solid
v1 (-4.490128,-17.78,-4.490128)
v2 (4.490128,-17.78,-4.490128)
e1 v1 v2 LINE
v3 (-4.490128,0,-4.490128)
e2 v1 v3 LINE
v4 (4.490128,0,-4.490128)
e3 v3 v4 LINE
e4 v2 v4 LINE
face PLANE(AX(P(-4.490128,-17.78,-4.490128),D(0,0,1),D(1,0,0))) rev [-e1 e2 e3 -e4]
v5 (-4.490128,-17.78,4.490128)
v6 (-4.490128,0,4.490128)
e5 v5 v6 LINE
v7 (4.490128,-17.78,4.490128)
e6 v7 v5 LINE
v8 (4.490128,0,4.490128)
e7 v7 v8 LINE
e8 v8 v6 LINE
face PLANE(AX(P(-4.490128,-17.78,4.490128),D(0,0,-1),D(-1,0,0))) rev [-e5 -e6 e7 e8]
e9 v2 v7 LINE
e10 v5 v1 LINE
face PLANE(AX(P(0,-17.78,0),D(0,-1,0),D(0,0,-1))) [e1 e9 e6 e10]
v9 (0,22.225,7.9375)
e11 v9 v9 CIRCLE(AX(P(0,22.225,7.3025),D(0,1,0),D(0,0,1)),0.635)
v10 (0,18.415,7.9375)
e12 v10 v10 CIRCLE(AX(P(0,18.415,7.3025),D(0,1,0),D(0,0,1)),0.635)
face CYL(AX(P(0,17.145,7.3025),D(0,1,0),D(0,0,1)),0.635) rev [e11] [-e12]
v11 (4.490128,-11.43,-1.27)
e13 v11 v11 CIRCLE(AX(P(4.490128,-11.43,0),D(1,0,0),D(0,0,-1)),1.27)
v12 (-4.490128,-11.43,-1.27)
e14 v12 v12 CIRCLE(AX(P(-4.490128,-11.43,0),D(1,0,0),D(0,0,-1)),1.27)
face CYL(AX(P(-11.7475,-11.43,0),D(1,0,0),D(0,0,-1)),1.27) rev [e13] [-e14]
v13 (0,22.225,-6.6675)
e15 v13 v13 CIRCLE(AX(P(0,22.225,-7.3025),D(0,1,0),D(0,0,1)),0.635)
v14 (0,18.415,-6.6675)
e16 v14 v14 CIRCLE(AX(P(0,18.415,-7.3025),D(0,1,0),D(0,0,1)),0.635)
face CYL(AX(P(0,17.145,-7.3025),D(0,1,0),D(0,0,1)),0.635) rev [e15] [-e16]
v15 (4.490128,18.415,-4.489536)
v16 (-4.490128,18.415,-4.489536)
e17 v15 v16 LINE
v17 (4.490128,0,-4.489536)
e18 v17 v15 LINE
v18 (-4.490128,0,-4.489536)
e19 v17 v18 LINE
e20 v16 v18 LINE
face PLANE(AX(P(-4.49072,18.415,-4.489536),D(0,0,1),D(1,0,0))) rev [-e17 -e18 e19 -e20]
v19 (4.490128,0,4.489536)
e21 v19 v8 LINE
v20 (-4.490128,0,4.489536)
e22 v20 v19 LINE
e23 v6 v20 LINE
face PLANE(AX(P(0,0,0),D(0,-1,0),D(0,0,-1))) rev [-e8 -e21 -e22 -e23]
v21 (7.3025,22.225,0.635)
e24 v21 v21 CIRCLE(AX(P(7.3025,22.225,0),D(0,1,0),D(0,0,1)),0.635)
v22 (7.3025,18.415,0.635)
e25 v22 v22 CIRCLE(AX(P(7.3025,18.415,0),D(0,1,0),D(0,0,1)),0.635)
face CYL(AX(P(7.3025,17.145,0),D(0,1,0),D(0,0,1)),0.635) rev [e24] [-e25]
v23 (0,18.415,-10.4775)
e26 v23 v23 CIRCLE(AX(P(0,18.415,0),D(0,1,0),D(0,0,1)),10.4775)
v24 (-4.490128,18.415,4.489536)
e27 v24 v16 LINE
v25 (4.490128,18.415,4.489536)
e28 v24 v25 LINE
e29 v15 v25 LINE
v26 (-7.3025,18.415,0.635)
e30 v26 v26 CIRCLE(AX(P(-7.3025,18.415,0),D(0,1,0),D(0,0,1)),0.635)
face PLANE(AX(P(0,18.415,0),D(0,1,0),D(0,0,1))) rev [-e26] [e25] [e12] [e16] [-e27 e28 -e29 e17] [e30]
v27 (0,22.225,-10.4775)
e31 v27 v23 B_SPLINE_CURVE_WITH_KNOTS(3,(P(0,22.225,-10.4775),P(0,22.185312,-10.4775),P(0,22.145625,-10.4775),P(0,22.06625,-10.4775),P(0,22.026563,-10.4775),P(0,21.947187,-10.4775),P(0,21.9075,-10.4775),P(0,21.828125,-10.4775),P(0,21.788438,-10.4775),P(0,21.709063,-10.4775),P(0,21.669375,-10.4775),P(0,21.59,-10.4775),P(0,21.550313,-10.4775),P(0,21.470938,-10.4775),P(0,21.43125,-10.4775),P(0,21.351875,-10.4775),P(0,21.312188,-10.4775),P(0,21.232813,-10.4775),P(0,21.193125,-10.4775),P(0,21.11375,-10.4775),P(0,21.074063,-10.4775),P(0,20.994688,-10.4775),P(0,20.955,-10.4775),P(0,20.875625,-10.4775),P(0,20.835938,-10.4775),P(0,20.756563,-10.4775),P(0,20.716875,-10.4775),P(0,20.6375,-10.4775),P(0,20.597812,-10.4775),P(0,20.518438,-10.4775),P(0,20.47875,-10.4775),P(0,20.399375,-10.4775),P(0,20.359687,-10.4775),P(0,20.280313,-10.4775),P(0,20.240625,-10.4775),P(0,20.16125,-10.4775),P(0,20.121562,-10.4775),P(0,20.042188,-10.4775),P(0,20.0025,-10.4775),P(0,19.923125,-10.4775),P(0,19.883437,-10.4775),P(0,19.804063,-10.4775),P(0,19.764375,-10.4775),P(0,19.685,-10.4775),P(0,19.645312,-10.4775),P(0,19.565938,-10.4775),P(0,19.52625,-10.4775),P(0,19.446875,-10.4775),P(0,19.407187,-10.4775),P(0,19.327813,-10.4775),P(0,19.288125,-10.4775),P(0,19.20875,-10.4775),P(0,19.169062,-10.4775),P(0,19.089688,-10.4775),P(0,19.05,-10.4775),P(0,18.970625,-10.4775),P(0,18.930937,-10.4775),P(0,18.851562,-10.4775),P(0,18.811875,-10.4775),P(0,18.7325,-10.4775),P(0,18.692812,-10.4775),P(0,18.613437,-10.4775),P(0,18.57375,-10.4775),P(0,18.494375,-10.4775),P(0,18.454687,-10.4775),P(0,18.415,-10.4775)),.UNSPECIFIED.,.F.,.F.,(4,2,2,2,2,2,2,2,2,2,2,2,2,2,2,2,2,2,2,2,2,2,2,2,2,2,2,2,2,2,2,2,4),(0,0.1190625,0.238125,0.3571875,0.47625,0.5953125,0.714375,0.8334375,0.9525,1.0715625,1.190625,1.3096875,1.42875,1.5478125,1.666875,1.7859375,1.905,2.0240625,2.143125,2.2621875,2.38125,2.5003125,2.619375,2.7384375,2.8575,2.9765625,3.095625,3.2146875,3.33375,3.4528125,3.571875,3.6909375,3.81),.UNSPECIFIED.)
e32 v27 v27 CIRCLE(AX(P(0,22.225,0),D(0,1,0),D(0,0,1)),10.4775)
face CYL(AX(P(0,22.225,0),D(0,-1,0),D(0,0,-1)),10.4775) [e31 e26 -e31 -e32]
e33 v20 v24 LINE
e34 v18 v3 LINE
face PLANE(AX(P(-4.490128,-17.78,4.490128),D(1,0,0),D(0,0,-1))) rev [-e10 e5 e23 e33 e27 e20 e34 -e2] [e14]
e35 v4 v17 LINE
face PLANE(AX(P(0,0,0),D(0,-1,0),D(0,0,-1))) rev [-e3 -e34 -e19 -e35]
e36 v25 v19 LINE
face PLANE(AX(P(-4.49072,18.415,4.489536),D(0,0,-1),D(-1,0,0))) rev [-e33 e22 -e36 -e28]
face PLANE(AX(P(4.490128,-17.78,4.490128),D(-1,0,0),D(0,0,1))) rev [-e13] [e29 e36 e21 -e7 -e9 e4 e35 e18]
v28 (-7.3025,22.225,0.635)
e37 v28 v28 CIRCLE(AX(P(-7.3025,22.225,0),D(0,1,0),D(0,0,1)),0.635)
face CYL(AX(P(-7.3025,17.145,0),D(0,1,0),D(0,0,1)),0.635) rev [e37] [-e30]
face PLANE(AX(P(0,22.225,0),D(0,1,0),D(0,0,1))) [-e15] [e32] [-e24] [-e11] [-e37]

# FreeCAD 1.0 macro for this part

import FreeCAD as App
import Part
import Sketcher
Q = App.Units.Quantity


def add_polygon(sketch, points):
    """Adds a closed chain of lines whose ends are joined by coincident constraints."""
    first, n = sketch.GeometryCount, len(points)
    for a, b in zip(points, points[1:] + points[:1]):
        sketch.addGeometry(Part.LineSegment(App.Vector(*a, 0), App.Vector(*b, 0)), False)
    for i in range(n):
        sketch.addConstraint(Sketcher.Constraint("Coincident", first + i, 2, first + (i + 1) % n, 1))

doc = App.newDocument("Part")
body = doc.addObject("PartDesign::Body", "Body")

sketch1 = body.newObject("Sketcher::SketchObject", "Sketch")
sketch1.AttachmentSupport = (doc.getObject("XZ_Plane"), [""])
sketch1.MapMode = "FlatFace"
add_polygon(sketch1, [(-4, -4), (-4, 4), (4, 4), (4, -4)])
sketch1.addConstraint(Sketcher.Constraint("Vertical", 0))
sketch1.addConstraint(Sketcher.Constraint("Horizontal", 1))
sketch1.addConstraint(Sketcher.Constraint("Vertical", 2))
sketch1.addConstraint(Sketcher.Constraint("Horizontal", 3))
sketch1.addConstraint(Sketcher.Constraint("Symmetric", 0, 2, 2, 2, -1, 1))
sketch1.addConstraint(Sketcher.Constraint("DistanceX", 1, 1, 1, 2, Q("0.3536 in")))
sketch1.addConstraint(Sketcher.Constraint("DistanceY", 0, 1, 0, 2, Q("8.979072 mm")))
pad1 = body.newObject("PartDesign::Pad", "Pad")
pad1.Profile = sketch1
pad1.Length = Q("0.725 in")
pad1.Reversed = True

sketch2 = body.newObject("Sketcher::SketchObject", "Sketch001")
sketch2.AttachmentSupport = (doc.getObject("XZ_Plane"), [""])
sketch2.MapMode = "FlatFace"
sketch2.AttachmentOffset = App.Placement(App.Vector(0, 0, -0.725 * 25.4), App.Rotation())
sketch2.addGeometry(Part.Circle(App.Vector(0, 0, 0), App.Vector(0, 0, 1), 10), False)
sketch2.addConstraint(Sketcher.Constraint("Coincident", 0, 3, -1, 1))
sketch2.addConstraint(Sketcher.Constraint("Diameter", 0, Q("0.825 in")))
pad2 = body.newObject("PartDesign::Pad", "Pad001")
pad2.Profile = sketch2
pad2.Length = Q("0.15 in")
pad2.Reversed = True

sketch3 = body.newObject("Sketcher::SketchObject", "Sketch002")
sketch3.AttachmentSupport = (doc.getObject("XZ_Plane"), [""])
sketch3.MapMode = "FlatFace"
sketch3.AttachmentOffset = App.Placement(App.Vector(0, 0, 0.2 * 25.4), App.Rotation())
sketch3.addGeometry(Part.Circle(App.Vector(0, 0, 0), App.Vector(0, 0, 1), 10), False)
sketch3.addConstraint(Sketcher.Constraint("Coincident", 0, 3, -1, 1))
sketch3.addConstraint(Sketcher.Constraint("Diameter", 0, Q("0.825 in")))
pad3 = body.newObject("PartDesign::Pad", "Pad002")
pad3.Profile = sketch3
pad3.Length = Q("0.2 in")
pad3.Reversed = True

sketch4 = body.newObject("Sketcher::SketchObject", "Sketch003")
sketch4.AttachmentSupport = (doc.getObject("XZ_Plane"), [""])
sketch4.MapMode = "FlatFace"
sketch4.AttachmentOffset = App.Placement(App.Vector(0, 0, 0.2 * 25.4), App.Rotation())
sketch4.addGeometry(Part.Circle(App.Vector(0, 0, 0), App.Vector(0, 0, 1), 20.08033), False)
add_polygon(sketch4, [(-1.83615, 7.449555), (0, 17.195074), (1.83615, 7.449555), (7.990949, 15.225482), (5.087812, 5.742952), (14.151269, 9.767915), (7.173916, 2.720708), (17.069703, 2.072637), (7.616563, -0.924818), (16.077674, -6.097457), (6.314347, -4.358479), (11.402443, -12.870698), (3.565591, -6.793665), (4.115051, -16.695417), (0, -7.672504), (-4.115051, -16.695417), (-3.565591, -6.793665), (-11.402443, -12.870698), (-6.314347, -4.358479), (-16.077674, -6.097457), (-7.616563, -0.924818), (-17.069703, 2.072637), (-7.173916, 2.720708), (-14.151269, 9.767915), (-5.087812, 5.742952), (-7.990949, 15.225482)])
sketch4.addConstraint(Sketcher.Constraint("Coincident", 0, 3, -1, 1))
sketch4.addConstraint(Sketcher.Constraint("PointOnObject", 1, 2, -2))
sketch4.addConstraint(Sketcher.Constraint("PointOnObject", 14, 2, -2))
sketch4.addConstraint(Sketcher.Constraint("Diameter", 0, Q("40.160659 mm")))
sketch4.addConstraint(Sketcher.Constraint("DistanceY", -1, 1, 7, 2, Q("0.0815999 in")))
sketch4.addConstraint(Sketcher.Constraint("DistanceY", 13, 2, -1, 1, Q("0.6572999 in")))
sketch4.addConstraint(Sketcher.Constraint("DistanceY", 15, 2, -1, 1, Q("0.6572999 in")))
sketch4.addConstraint(Sketcher.Constraint("DistanceY", -1, 1, 21, 2, Q("0.0815999 in")))
sketch4.addConstraint(Sketcher.Constraint("DistanceY", 14, 2, 12, 2, Q("0.0346 in")))
sketch4.addConstraint(Sketcher.Constraint("DistanceY", 14, 2, 16, 2, Q("0.0346 in")))
sketch4.addConstraint(Sketcher.Constraint("DistanceX", 2, 2, 3, 2, Q("6.154799 mm")))
sketch4.addConstraint(Sketcher.Constraint("DistanceY", 13, 2, 8, 2, Q("15.770598 mm")))
sketch4.addConstraint(Sketcher.Constraint("DistanceX", 15, 2, 13, 2, Q("8.230101 mm")))
sketch4.addConstraint(Sketcher.Constraint("DistanceX", 25, 2, 2, 2, Q("9.8271 mm")))
sketch4.addConstraint(Sketcher.Constraint("DistanceX", 26, 2, 2, 2, Q("3.672301 mm")))
sketch4.addConstraint(Sketcher.Constraint("DistanceX", -1, 1, 2, 2, Q("1.83615 mm")))
sketch4.addConstraint(Sketcher.Constraint("DistanceX", -1, 1, 4, 2, Q("5.087812 mm")))
sketch4.addConstraint(Sketcher.Constraint("DistanceX", -1, 1, 5, 2, Q("14.151269 mm")))
sketch4.addConstraint(Sketcher.Constraint("DistanceY", 10, 2, -1, 1, Q("4.358479 mm")))
sketch4.addConstraint(Sketcher.Constraint("DistanceX", -1, 1, 12, 2, Q("3.565591 mm")))
sketch4.addConstraint(Sketcher.Constraint("DistanceX", -1, 1, 13, 2, Q("4.115051 mm")))
sketch4.addConstraint(Sketcher.Constraint("DistanceX", 16, 2, -1, 1, Q("3.565591 mm")))
sketch4.addConstraint(Sketcher.Constraint("DistanceY", 18, 2, -1, 1, Q("4.358479 mm")))
sketch4.addConstraint(Sketcher.Constraint("DistanceY", 20, 2, -1, 1, Q("0.924818 mm")))
sketch4.addConstraint(Sketcher.Constraint("DistanceX", 23, 2, -1, 1, Q("14.151269 mm")))
sketch4.addConstraint(Sketcher.Constraint("DistanceX", 24, 2, -1, 1, Q("5.087812 mm")))
sketch4.addConstraint(Sketcher.Constraint("DistanceY", 2, 2, 1, 2, Q("9.745519 mm")))
sketch4.addConstraint(Sketcher.Constraint("DistanceY", 4, 2, 3, 2, Q("9.48253 mm")))
sketch4.addConstraint(Sketcher.Constraint("DistanceY", 2, 2, 5, 2, Q("2.31836 mm")))
sketch4.addConstraint(Sketcher.Constraint("DistanceY", 7, 2, 5, 2, Q("7.695278 mm")))
sketch4.addConstraint(Sketcher.Constraint("DistanceY", 7, 2, 6, 2, Q("0.64807 mm")))
sketch4.addConstraint(Sketcher.Constraint("DistanceX", 4, 2, 7, 2, Q("11.981891 mm")))
sketch4.addConstraint(Sketcher.Constraint("DistanceX", 4, 2, 8, 2, Q("2.528752 mm")))
sketch4.addConstraint(Sketcher.Constraint("DistanceY", 8, 2, 4, 2, Q("6.66777 mm")))
sketch4.addConstraint(Sketcher.Constraint("DistanceX", 9, 2, 7, 2, Q("0.992029 mm")))
sketch4.addConstraint(Sketcher.Constraint("DistanceY", 9, 2, 8, 2, Q("5.172639 mm")))
sketch4.addConstraint(Sketcher.Constraint("DistanceX", 10, 2, 6, 2, Q("0.859569 mm")))
sketch4.addConstraint(Sketcher.Constraint("DistanceX", 11, 2, 9, 2, Q("4.67523 mm")))
sketch4.addConstraint(Sketcher.Constraint("DistanceY", 11, 2, 9, 2, Q("6.773241 mm")))
sketch4.addConstraint(Sketcher.Constraint("DistanceY", 13, 2, 12, 2, Q("9.901751 mm")))
sketch4.addConstraint(Sketcher.Constraint("DistanceY", 15, 2, 17, 2, Q("3.824719 mm")))
sketch4.addConstraint(Sketcher.Constraint("DistanceX", 19, 2, 17, 2, Q("4.67523 mm")))
sketch4.addConstraint(Sketcher.Constraint("DistanceY", 17, 2, 19, 2, Q("6.773241 mm")))
sketch4.addConstraint(Sketcher.Constraint("DistanceX", 19, 2, 20, 2, Q("8.46111 mm")))
sketch4.addConstraint(Sketcher.Constraint("DistanceX", 21, 2, 19, 2, Q("0.992029 mm")))
sketch4.addConstraint(Sketcher.Constraint("DistanceX", 22, 2, 18, 2, Q("0.859569 mm")))
sketch4.addConstraint(Sketcher.Constraint("DistanceY", 21, 2, 22, 2, Q("0.64807 mm")))
sketch4.addConstraint(Sketcher.Constraint("DistanceY", 21, 2, 23, 2, Q("7.695278 mm")))
sketch4.addConstraint(Sketcher.Constraint("DistanceX", 20, 2, 24, 2, Q("2.528752 mm")))
sketch4.addConstraint(Sketcher.Constraint("DistanceY", 20, 2, 24, 2, Q("6.66777 mm")))
sketch4.addConstraint(Sketcher.Constraint("DistanceY", 24, 2, 25, 2, Q("9.48253 mm")))
sketch4.addConstraint(Sketcher.Constraint("Distance", 1, Q("9.916985 mm")))
sketch4.addConstraint(Sketcher.Constraint("Distance", 6, Q("9.916985 mm")))
sketch4.addConstraint(Sketcher.Constraint("Distance", 18, Q("9.916985 mm")))
pocket1 = body.newObject("PartDesign::Pocket", "Pocket")
pocket1.Profile = sketch4
pocket1.Length = Q("0.2 in")

sketch5 = body.newObject("Sketcher::SketchObject", "Sketch004")
sketch5.AttachmentSupport = (doc.getObject("XZ_Plane"), [""])
sketch5.MapMode = "FlatFace"
sketch5.AttachmentOffset = App.Placement(App.Vector(0, 0, 0.2 * 25.4), App.Rotation())
sketch5.addGeometry(Part.Circle(App.Vector(0, 0, 0), App.Vector(0, 0, 1), 12), False)
sketch5.addConstraint(Sketcher.Constraint("Coincident", 0, 3, -1, 1))
sketch5.addConstraint(Sketcher.Constraint("Diameter", 0, Q("0.925 in")))
pad4 = body.newObject("PartDesign::Pad", "Pad003")
pad4.Profile = sketch5
pad4.Length = Q("0.05 in")

sketch6 = body.newObject("Sketcher::SketchObject", "Sketch005")
sketch6.AttachmentSupport = (doc.getObject("XZ_Plane"), [""])
sketch6.MapMode = "FlatFace"
sketch6.AttachmentOffset = App.Placement(App.Vector(0, 0, -0.875 * 25.4), App.Rotation())
sketch6.addGeometry(Part.Circle(App.Vector(0, -7.3, 0), App.Vector(0, 0, 1), 0.6), False)
sketch6.addGeometry(Part.Circle(App.Vector(7.3, 0, 0), App.Vector(0, 0, 1), 0.6), False)
sketch6.addGeometry(Part.Circle(App.Vector(-7.3, 0, 0), App.Vector(0, 0, 1), 0.6), False)
sketch6.addGeometry(Part.Circle(App.Vector(0, 7.3, 0), App.Vector(0, 0, 1), 0.6), False)
sketch6.addConstraint(Sketcher.Constraint("Equal", 0, 1))
sketch6.addConstraint(Sketcher.Constraint("Equal", 1, 2))
sketch6.addConstraint(Sketcher.Constraint("Equal", 2, 3))
sketch6.addConstraint(Sketcher.Constraint("Symmetric", 1, 3, 2, 3, -1, 1))
sketch6.addConstraint(Sketcher.Constraint("Symmetric", 0, 3, 3, 3, -1, 1))
sketch6.addConstraint(Sketcher.Constraint("PointOnObject", 0, 3, -2))
sketch6.addConstraint(Sketcher.Constraint("PointOnObject", 1, 3, -1))
sketch6.addConstraint(Sketcher.Constraint("Diameter", 0, Q("0.05 in")))
sketch6.addConstraint(Sketcher.Constraint("DistanceX", 2, 3, 1, 3, Q("0.575 in")))
sketch6.addConstraint(Sketcher.Constraint("DistanceY", 0, 3, 3, 3, Q("0.575 in")))
pocket2 = body.newObject("PartDesign::Pocket", "Pocket001")
pocket2.Profile = sketch6
pocket2.Length = Q("0.2 in")
pocket2.Reversed = True

sketch7 = body.newObject("Sketcher::SketchObject", "Sketch006")
sketch7.AttachmentSupport = (doc.getObject("XZ_Plane"), [""])
sketch7.MapMode = "FlatFace"
sketch7.AttachmentOffset = App.Placement(App.Vector(0, 0, 0.25 * 25.4), App.Rotation())
add_polygon(sketch7, [(-4, 4), (-4, -4), (4, -4), (4, 4)])
sketch7.addConstraint(Sketcher.Constraint("Vertical", 0))
sketch7.addConstraint(Sketcher.Constraint("Horizontal", 1))
sketch7.addConstraint(Sketcher.Constraint("Vertical", 2))
sketch7.addConstraint(Sketcher.Constraint("Horizontal", 3))
sketch7.addConstraint(Sketcher.Constraint("Symmetric", 0, 2, 2, 2, -1, 1))
sketch7.addConstraint(Sketcher.Constraint("Equal", 3, 0))
sketch7.addConstraint(Sketcher.Constraint("DistanceX", 1, 1, 1, 2, Q("8.980256 mm")))
pad5 = body.newObject("PartDesign::Pad", "Pad004")
pad5.Profile = sketch7
pad5.Length = Q("0.45 in")

sketch8 = body.newObject("Sketcher::SketchObject", "Sketch007")
sketch8.AttachmentSupport = (doc.getObject("YZ_Plane"), [""])
sketch8.MapMode = "FlatFace"
sketch8.AttachmentOffset = App.Placement(App.Vector(0, 0, 4.490128), App.Rotation())
sketch8.addGeometry(Part.Circle(App.Vector(-11.4, 0, 0), App.Vector(0, 0, 1), 1.3), False)
sketch8.addConstraint(Sketcher.Constraint("PointOnObject", 0, 3, -1))
sketch8.addConstraint(Sketcher.Constraint("Diameter", 0, Q("0.1 in")))
sketch8.addConstraint(Sketcher.Constraint("DistanceX", 0, 3, -1, 1, Q("0.45 in")))
pocket3 = body.newObject("PartDesign::Pocket", "Pocket002")
pocket3.Profile = sketch8
pocket3.Type = "ThroughAll"

sketch9 = body.newObject("Sketcher::SketchObject", "Sketch008")
sketch9.AttachmentSupport = (doc.getObject("XZ_Plane"), [""])
sketch9.MapMode = "FlatFace"
sketch9.AttachmentOffset = App.Placement(App.Vector(0, 0, 0.25 * 25.4), App.Rotation())
sketch9.addGeometry(Part.Circle(App.Vector(0, 0, 0), App.Vector(0, 0, 1), 16), False)
add_polygon(sketch9, [(4, -4), (-4, -4), (-4, 4), (4, 4)])
sketch9.addConstraint(Sketcher.Constraint("Horizontal", 1))
sketch9.addConstraint(Sketcher.Constraint("Vertical", 2))
sketch9.addConstraint(Sketcher.Constraint("Horizontal", 3))
sketch9.addConstraint(Sketcher.Constraint("Vertical", 4))
sketch9.addConstraint(Sketcher.Constraint("Coincident", 0, 3, -1, 1))
sketch9.addConstraint(Sketcher.Constraint("Symmetric", 1, 2, 3, 2, -1, 1))
sketch9.addConstraint(Sketcher.Constraint("Equal", 3, 2))
sketch9.addConstraint(Sketcher.Constraint("Diameter", 0, Q("32.665242 mm")))
sketch9.addConstraint(Sketcher.Constraint("DistanceX", 1, 2, 1, 1, Q("8.980256 mm")))
pocket4 = body.newObject("PartDesign::Pocket", "Pocket003")
pocket4.Profile = sketch9
pocket4.Length = Q("0.975 in")

doc.recompute()
